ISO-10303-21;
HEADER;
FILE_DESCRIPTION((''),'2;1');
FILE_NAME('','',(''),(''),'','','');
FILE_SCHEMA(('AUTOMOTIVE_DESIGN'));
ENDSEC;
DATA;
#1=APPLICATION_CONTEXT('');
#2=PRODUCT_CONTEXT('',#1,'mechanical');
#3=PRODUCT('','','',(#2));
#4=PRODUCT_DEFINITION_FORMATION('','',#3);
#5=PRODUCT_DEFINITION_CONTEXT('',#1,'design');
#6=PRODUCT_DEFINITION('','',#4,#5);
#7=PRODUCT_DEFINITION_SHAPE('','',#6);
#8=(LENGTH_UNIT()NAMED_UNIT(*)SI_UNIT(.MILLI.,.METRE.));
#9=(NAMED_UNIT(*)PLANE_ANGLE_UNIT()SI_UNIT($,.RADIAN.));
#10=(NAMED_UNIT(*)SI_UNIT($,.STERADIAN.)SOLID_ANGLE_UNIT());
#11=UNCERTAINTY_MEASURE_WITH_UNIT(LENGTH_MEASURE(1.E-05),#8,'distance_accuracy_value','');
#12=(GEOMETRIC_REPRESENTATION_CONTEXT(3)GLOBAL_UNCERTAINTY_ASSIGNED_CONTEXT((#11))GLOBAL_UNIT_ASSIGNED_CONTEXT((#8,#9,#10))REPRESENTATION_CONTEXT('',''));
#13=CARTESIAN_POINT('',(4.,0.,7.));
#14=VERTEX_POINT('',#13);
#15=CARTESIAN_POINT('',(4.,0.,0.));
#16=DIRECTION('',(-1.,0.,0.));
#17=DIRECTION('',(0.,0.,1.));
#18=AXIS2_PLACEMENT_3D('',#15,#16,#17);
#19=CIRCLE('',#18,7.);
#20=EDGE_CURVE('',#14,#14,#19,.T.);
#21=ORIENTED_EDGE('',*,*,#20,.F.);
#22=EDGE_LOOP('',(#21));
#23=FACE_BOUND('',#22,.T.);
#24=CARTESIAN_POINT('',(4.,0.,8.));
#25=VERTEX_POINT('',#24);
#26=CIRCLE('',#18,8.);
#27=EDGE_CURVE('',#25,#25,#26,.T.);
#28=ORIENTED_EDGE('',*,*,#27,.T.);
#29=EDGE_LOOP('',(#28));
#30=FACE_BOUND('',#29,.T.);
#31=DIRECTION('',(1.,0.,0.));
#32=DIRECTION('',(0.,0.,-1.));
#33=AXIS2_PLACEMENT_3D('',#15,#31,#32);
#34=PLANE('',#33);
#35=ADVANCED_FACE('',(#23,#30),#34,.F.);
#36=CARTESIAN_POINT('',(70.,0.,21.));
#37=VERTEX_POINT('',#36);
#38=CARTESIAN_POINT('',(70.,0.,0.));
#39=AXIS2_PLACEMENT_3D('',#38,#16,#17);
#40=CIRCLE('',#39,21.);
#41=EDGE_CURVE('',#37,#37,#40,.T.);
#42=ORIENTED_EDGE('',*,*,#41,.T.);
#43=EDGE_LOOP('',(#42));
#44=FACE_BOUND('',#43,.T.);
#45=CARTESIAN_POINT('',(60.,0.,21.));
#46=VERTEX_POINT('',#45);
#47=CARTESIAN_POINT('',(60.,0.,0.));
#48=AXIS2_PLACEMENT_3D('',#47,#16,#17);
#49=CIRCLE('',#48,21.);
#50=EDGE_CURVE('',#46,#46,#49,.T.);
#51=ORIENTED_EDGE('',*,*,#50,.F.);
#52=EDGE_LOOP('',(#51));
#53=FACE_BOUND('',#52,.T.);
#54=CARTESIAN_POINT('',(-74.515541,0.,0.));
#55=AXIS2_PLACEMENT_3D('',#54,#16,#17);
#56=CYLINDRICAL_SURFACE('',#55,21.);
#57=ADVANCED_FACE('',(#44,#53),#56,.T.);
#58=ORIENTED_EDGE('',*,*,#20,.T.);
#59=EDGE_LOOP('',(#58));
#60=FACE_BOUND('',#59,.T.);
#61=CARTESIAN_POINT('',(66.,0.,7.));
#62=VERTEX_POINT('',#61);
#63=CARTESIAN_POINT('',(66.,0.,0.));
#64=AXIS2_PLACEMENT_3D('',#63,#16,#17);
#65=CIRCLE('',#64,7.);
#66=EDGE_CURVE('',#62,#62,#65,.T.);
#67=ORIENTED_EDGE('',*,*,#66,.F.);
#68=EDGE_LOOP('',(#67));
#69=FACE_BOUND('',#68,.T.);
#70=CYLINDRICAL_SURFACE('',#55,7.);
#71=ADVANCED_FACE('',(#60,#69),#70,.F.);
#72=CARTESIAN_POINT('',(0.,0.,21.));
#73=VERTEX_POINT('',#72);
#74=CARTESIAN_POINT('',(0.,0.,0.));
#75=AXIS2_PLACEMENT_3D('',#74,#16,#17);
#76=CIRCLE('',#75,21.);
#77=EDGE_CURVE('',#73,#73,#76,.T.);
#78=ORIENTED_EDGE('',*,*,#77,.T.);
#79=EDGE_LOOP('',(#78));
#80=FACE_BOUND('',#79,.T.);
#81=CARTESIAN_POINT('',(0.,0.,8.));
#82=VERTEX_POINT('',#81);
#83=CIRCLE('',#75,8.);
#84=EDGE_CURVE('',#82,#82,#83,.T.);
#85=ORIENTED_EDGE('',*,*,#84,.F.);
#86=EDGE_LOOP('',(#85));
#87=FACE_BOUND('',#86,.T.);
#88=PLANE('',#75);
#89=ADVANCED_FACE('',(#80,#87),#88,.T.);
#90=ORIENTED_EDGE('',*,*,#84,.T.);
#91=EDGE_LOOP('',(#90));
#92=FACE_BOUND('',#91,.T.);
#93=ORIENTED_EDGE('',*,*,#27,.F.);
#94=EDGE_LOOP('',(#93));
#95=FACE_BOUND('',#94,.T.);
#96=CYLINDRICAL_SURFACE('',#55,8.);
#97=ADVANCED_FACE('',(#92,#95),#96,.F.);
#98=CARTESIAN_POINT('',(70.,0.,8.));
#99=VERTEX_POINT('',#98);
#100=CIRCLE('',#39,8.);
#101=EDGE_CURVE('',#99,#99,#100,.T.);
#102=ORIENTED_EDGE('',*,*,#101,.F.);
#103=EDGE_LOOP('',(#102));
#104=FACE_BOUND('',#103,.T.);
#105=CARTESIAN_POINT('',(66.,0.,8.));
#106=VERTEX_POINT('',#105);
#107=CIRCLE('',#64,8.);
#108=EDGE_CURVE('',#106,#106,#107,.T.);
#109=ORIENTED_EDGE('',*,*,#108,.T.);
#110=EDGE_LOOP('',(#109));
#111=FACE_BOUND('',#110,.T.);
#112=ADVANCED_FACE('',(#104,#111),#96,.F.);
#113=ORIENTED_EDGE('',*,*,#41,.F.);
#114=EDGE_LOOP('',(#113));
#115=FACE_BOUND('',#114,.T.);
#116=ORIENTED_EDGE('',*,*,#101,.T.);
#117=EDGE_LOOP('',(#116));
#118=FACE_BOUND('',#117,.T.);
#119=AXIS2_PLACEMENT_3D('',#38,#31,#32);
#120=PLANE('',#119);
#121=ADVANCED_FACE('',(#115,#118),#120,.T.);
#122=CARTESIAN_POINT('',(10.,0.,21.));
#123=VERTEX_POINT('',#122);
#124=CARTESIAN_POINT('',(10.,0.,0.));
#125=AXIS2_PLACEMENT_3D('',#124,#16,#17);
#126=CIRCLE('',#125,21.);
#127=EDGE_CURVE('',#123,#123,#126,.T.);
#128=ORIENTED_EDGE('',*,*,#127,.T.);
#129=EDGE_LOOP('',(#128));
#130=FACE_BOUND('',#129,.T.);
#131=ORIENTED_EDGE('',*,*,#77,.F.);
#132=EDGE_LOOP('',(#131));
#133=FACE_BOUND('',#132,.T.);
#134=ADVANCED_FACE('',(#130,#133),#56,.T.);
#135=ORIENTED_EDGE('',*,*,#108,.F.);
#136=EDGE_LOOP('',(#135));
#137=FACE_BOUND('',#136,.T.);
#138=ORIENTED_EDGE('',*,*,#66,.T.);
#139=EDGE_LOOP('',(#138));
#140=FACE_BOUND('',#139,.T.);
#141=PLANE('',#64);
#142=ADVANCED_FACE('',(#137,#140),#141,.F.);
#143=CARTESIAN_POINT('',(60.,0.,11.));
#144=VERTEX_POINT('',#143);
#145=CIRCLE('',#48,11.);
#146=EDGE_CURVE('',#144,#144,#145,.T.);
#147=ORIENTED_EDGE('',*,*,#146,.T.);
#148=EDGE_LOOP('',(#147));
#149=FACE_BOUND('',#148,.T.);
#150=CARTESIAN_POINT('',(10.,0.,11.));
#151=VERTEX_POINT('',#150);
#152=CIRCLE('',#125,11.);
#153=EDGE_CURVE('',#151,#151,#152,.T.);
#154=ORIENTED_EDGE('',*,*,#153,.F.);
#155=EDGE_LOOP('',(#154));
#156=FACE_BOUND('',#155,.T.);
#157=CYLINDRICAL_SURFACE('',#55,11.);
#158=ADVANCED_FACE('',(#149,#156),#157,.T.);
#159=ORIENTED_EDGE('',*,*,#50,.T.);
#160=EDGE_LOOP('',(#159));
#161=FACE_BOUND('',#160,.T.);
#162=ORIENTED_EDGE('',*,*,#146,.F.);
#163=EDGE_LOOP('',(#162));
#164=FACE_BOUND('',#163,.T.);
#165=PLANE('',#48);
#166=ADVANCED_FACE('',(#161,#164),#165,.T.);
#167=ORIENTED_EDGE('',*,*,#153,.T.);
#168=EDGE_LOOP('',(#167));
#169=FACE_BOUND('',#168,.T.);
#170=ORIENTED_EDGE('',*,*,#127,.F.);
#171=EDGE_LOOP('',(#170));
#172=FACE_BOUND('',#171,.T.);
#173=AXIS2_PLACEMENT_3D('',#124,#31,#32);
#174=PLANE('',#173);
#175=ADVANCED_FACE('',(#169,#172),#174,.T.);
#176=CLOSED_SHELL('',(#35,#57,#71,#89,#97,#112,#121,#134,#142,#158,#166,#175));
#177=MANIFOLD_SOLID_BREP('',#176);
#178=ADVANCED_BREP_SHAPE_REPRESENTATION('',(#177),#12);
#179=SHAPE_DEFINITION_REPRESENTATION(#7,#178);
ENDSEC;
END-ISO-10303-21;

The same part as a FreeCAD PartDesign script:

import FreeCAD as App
import Part
import Sketcher
from FreeCAD import Vector
Q = App.Units.Quantity

doc = App.newDocument("Part")
body = doc.addObject("PartDesign::Body", "Body")

sketch1 = body.newObject("Sketcher::SketchObject", "Sketch")
sketch1.AttachmentSupport = (doc.getObject("XZ_Plane"), [""])
sketch1.MapMode = "FlatFace"
sketch1.addGeometry([
    Part.LineSegment(Vector(66, -7, 0), Vector(66, -8, 0)),
    Part.LineSegment(Vector(66, -8, 0), Vector(70, -8, 0)),
    Part.LineSegment(Vector(70, -8, 0), Vector(70, -21, 0)),
    Part.LineSegment(Vector(70, -21, 0), Vector(60, -21, 0)),
    Part.LineSegment(Vector(60, -21, 0), Vector(60, -11, 0)),
    Part.LineSegment(Vector(60, -11, 0), Vector(10, -11, 0)),
    Part.LineSegment(Vector(10, -11, 0), Vector(10, -21, 0)),
    Part.LineSegment(Vector(10, -21, 0), Vector(0, -21, 0)),
    Part.LineSegment(Vector(0, -21, 0), Vector(0, -8, 0)),
    Part.LineSegment(Vector(0, -8, 0), Vector(4, -8, 0)),
    Part.LineSegment(Vector(4, -8, 0), Vector(4, -7, 0)),
    Part.LineSegment(Vector(4, -7, 0), Vector(66, -7, 0)),
], False)
sketch1.addConstraint([
    Sketcher.Constraint("Coincident", 0, 2, 1, 1),
    Sketcher.Constraint("Coincident", 1, 2, 2, 1),
    Sketcher.Constraint("Coincident", 2, 2, 3, 1),
    Sketcher.Constraint("Coincident", 3, 2, 4, 1),
    Sketcher.Constraint("Coincident", 4, 2, 5, 1),
    Sketcher.Constraint("Coincident", 5, 2, 6, 1),
    Sketcher.Constraint("Coincident", 6, 2, 7, 1),
    Sketcher.Constraint("Coincident", 7, 2, 8, 1),
    Sketcher.Constraint("Coincident", 8, 2, 9, 1),
    Sketcher.Constraint("Coincident", 9, 2, 10, 1),
    Sketcher.Constraint("Coincident", 10, 2, 11, 1),
    Sketcher.Constraint("Coincident", 11, 2, 0, 1),
    Sketcher.Constraint("Vertical", 0),
    Sketcher.Constraint("Horizontal", 1),
    Sketcher.Constraint("Vertical", 2),
    Sketcher.Constraint("Horizontal", 3),
    Sketcher.Constraint("Vertical", 4),
    Sketcher.Constraint("Horizontal", 5),
    Sketcher.Constraint("Vertical", 6),
    Sketcher.Constraint("Horizontal", 7),
    Sketcher.Constraint("Vertical", 8),
    Sketcher.Constraint("Horizontal", 9),
    Sketcher.Constraint("Vertical", 10),
    Sketcher.Constraint("Horizontal", 11),
    Sketcher.Constraint("PointOnObject", 7, 2, -2),
    Sketcher.Constraint("Horizontal", 3, 2, 6, 2),
    Sketcher.Constraint("Horizontal", 1, 2, 8, 2),
    Sketcher.Constraint("Equal", 3, 7),
    Sketcher.Constraint("Equal", 1, 9),
    Sketcher.Constraint("Equal", 7, 4),
    Sketcher.Constraint("DistanceX", 1, 1, 1, 2, Q("4 mm")),
    Sketcher.Constraint("DistanceX", 3, 2, 3, 1, Q("10 mm")),
    Sketcher.Constraint("DistanceX", 5, 2, 5, 1, Q("50 mm")),
    Sketcher.Constraint("DistanceY", 0, 2, 0, 1, Q("1 mm")),
    Sketcher.Constraint("DistanceY", 2, 2, 2, 1, Q("13 mm")),
    Sketcher.Constraint("DistanceY", 0, 2, -1, 1, Q("8 mm")),
])
revolution = body.newObject("PartDesign::Revolution", "Revolution")
revolution.Profile = sketch1
revolution.ReferenceAxis = (sketch1, ["H_Axis"])
revolution.Angle = 360

doc.recompute()
